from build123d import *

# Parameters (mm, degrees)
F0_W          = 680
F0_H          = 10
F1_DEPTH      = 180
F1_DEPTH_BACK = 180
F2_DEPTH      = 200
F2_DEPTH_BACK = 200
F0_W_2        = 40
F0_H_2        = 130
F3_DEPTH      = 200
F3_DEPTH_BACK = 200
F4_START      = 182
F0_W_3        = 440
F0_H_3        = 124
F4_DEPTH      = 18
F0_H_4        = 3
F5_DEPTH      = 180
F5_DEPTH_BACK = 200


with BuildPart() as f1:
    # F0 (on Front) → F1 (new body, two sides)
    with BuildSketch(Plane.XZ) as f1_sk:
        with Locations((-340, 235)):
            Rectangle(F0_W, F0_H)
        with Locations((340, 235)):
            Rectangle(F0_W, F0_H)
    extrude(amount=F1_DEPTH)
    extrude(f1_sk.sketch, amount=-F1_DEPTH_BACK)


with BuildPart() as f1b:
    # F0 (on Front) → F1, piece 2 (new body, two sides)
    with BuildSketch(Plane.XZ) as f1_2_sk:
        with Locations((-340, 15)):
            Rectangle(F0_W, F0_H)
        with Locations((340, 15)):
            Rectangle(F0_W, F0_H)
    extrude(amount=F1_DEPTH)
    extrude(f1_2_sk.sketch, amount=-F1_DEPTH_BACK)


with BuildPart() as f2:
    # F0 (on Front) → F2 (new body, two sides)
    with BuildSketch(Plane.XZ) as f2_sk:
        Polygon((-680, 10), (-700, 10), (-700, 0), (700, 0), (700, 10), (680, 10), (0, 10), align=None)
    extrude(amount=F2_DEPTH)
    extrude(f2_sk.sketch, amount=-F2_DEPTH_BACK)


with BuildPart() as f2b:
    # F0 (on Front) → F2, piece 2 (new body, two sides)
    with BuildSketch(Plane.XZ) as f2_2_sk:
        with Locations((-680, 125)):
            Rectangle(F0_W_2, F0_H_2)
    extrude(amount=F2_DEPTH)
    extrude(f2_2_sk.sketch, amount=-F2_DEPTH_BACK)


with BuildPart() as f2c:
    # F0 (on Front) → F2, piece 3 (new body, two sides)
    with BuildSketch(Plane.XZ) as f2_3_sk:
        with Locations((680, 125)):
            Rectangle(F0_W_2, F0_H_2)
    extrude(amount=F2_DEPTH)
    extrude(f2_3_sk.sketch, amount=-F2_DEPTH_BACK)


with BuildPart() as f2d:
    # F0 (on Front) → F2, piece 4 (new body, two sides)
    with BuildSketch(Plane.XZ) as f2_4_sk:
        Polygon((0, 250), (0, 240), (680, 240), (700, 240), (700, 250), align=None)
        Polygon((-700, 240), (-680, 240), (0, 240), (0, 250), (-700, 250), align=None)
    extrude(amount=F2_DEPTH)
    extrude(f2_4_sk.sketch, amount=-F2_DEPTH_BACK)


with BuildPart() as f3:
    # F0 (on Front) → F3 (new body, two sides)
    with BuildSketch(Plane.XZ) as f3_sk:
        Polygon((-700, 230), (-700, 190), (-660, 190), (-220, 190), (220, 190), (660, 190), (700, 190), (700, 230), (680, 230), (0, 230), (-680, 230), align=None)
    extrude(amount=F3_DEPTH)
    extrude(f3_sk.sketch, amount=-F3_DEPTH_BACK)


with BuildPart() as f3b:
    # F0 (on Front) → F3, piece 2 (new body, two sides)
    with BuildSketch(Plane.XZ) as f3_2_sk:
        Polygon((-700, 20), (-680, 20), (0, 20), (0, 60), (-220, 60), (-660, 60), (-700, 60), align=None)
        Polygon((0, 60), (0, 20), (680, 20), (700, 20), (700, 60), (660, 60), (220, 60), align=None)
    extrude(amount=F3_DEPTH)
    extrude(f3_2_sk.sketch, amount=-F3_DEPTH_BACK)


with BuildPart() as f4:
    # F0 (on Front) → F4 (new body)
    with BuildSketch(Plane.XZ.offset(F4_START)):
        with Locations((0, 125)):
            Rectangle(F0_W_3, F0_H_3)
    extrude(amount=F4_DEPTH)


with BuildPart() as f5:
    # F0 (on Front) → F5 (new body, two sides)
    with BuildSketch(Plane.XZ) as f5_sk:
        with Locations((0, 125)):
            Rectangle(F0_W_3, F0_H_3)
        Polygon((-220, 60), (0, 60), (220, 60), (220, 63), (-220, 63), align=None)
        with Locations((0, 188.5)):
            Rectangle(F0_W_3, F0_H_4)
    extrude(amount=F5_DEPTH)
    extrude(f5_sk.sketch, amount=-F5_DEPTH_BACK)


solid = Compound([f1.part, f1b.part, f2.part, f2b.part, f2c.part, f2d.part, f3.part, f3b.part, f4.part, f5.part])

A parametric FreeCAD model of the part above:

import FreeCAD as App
import Part
import Sketcher
from FreeCAD import Vector
Q = App.Units.Quantity


def add_polygon(sketch, points):
    """Adds a closed chain of lines whose ends are joined by coincident constraints."""
    first, n = sketch.GeometryCount, len(points)
    for a, b in zip(points, points[1:] + points[:1]):
        sketch.addGeometry(Part.LineSegment(App.Vector(*a, 0), App.Vector(*b, 0)), False)
    for i in range(n):
        sketch.addConstraint(Sketcher.Constraint("Coincident", first + i, 2, first + (i + 1) % n, 1))

doc = App.newDocument("Part")
body = doc.addObject("PartDesign::Body", "Body")

sketch1 = body.newObject("Sketcher::SketchObject", "Sketch")
sketch1.AttachmentSupport = (doc.getObject("XZ_Plane"), [""])
sketch1.MapMode = "FlatFace"
add_polygon(sketch1, [(-680, 240), (-680, 230), (680, 230), (680, 240)])
sketch1.addConstraint([
    Sketcher.Constraint("Vertical", 0),
    Sketcher.Constraint("Horizontal", 1),
    Sketcher.Constraint("Vertical", 2),
    Sketcher.Constraint("Horizontal", 3),
    Sketcher.Constraint("DistanceX", 1, 1, 1, 2, Q("1360 mm")),
    Sketcher.Constraint("DistanceY", 0, 2, 0, 1, Q("10 mm")),
    Sketcher.Constraint("DistanceX", 0, 2, -1, 1, Q("680 mm")),
    Sketcher.Constraint("DistanceY", -1, 1, 0, 2, Q("230 mm")),
])
pad1 = body.newObject("PartDesign::Pad", "Pad")
pad1.Profile = sketch1
pad1.Type = "TwoLengths"
pad1.Length = 180
pad1.Length2 = 180
body2 = doc.addObject("PartDesign::Body", "Body001")

sketch2 = body2.newObject("Sketcher::SketchObject", "Sketch001")
sketch2.AttachmentSupport = (doc.getObject("XZ_Plane001"), [""])
sketch2.MapMode = "FlatFace"
add_polygon(sketch2, [(-680, 20), (-680, 10), (680, 10), (680, 20)])
sketch2.addConstraint([
    Sketcher.Constraint("Vertical", 0),
    Sketcher.Constraint("Horizontal", 1),
    Sketcher.Constraint("Vertical", 2),
    Sketcher.Constraint("Horizontal", 3),
    Sketcher.Constraint("DistanceX", 1, 1, 1, 2, Q("1360 mm")),
    Sketcher.Constraint("DistanceY", 0, 2, 0, 1, Q("10 mm")),
    Sketcher.Constraint("DistanceX", 0, 2, -1, 1, Q("680 mm")),
    Sketcher.Constraint("DistanceY", -1, 1, 0, 2, Q("10 mm")),
])
pad2 = body2.newObject("PartDesign::Pad", "Pad001")
pad2.Profile = sketch2
pad2.Type = "TwoLengths"
pad2.Length = 180
pad2.Length2 = 180
body3 = doc.addObject("PartDesign::Body", "Body002")

sketch3 = body3.newObject("Sketcher::SketchObject", "Sketch002")
sketch3.AttachmentSupport = (doc.getObject("XZ_Plane002"), [""])
sketch3.MapMode = "FlatFace"
add_polygon(sketch3, [(-700, 10), (-700, 0), (700, 0), (700, 10)])
sketch3.addConstraint([
    Sketcher.Constraint("Vertical", 0),
    Sketcher.Constraint("Horizontal", 1),
    Sketcher.Constraint("Vertical", 2),
    Sketcher.Constraint("Horizontal", 3),
    Sketcher.Constraint("Symmetric", 0, 2, 1, 2, -1, 1),
    Sketcher.Constraint("DistanceX", 1, 1, 1, 2, Q("1400 mm")),
    Sketcher.Constraint("DistanceY", 0, 2, 0, 1, Q("10 mm")),
])
pad3 = body3.newObject("PartDesign::Pad", "Pad002")
pad3.Profile = sketch3
pad3.Type = "TwoLengths"
pad3.Length = 200
pad3.Length2 = 200
body4 = doc.addObject("PartDesign::Body", "Body003")

sketch4 = body4.newObject("Sketcher::SketchObject", "Sketch003")
sketch4.AttachmentSupport = (doc.getObject("XZ_Plane003"), [""])
sketch4.MapMode = "FlatFace"
add_polygon(sketch4, [(-700, 190), (-700, 60), (-660, 60), (-660, 190)])
sketch4.addConstraint([
    Sketcher.Constraint("Vertical", 0),
    Sketcher.Constraint("Horizontal", 1),
    Sketcher.Constraint("Vertical", 2),
    Sketcher.Constraint("Horizontal", 3),
    Sketcher.Constraint("DistanceX", 1, 1, 1, 2, Q("40 mm")),
    Sketcher.Constraint("DistanceY", 0, 2, 0, 1, Q("130 mm")),
    Sketcher.Constraint("DistanceX", 0, 2, -1, 1, Q("700 mm")),
    Sketcher.Constraint("DistanceY", -1, 1, 0, 2, Q("60 mm")),
])
pad4 = body4.newObject("PartDesign::Pad", "Pad003")
pad4.Profile = sketch4
pad4.Type = "TwoLengths"
pad4.Length = 200
pad4.Length2 = 200
body5 = doc.addObject("PartDesign::Body", "Body004")

sketch5 = body5.newObject("Sketcher::SketchObject", "Sketch004")
sketch5.AttachmentSupport = (doc.getObject("XZ_Plane004"), [""])
sketch5.MapMode = "FlatFace"
add_polygon(sketch5, [(660, 190), (660, 60), (700, 60), (700, 190)])
sketch5.addConstraint([
    Sketcher.Constraint("Vertical", 0),
    Sketcher.Constraint("Horizontal", 1),
    Sketcher.Constraint("Vertical", 2),
    Sketcher.Constraint("Horizontal", 3),
    Sketcher.Constraint("DistanceX", 1, 1, 1, 2, Q("40 mm")),
    Sketcher.Constraint("DistanceY", 0, 2, 0, 1, Q("130 mm")),
    Sketcher.Constraint("DistanceX", -1, 1, 0, 2, Q("660 mm")),
    Sketcher.Constraint("DistanceY", -1, 1, 0, 2, Q("60 mm")),
])
pad5 = body5.newObject("PartDesign::Pad", "Pad004")
pad5.Profile = sketch5
pad5.Type = "TwoLengths"
pad5.Length = 200
pad5.Length2 = 200
body6 = doc.addObject("PartDesign::Body", "Body005")

sketch6 = body6.newObject("Sketcher::SketchObject", "Sketch005")
sketch6.AttachmentSupport = (doc.getObject("XZ_Plane005"), [""])
sketch6.MapMode = "FlatFace"
add_polygon(sketch6, [(700, 240), (700, 250), (-700, 250), (-700, 240)])
sketch6.addConstraint([
    Sketcher.Constraint("Vertical", 0),
    Sketcher.Constraint("Horizontal", 1),
    Sketcher.Constraint("Vertical", 2),
    Sketcher.Constraint("Horizontal", 3),
    Sketcher.Constraint("DistanceX", 1, 2, 1, 1, Q("1400 mm")),
    Sketcher.Constraint("DistanceY", 0, 1, 0, 2, Q("10 mm")),
    Sketcher.Constraint("DistanceX", -1, 1, 0, 2, Q("700 mm")),
    Sketcher.Constraint("DistanceY", -1, 1, 0, 2, Q("250 mm")),
])
pad6 = body6.newObject("PartDesign::Pad", "Pad005")
pad6.Profile = sketch6
pad6.Type = "TwoLengths"
pad6.Length = 200
pad6.Length2 = 200
body7 = doc.addObject("PartDesign::Body", "Body006")

sketch7 = body7.newObject("Sketcher::SketchObject", "Sketch006")
sketch7.AttachmentSupport = (doc.getObject("XZ_Plane006"), [""])
sketch7.MapMode = "FlatFace"
add_polygon(sketch7, [(-700, 230), (-700, 190), (700, 190), (700, 230)])
sketch7.addConstraint([
    Sketcher.Constraint("Vertical", 0),
    Sketcher.Constraint("Horizontal", 1),
    Sketcher.Constraint("Vertical", 2),
    Sketcher.Constraint("Horizontal", 3),
    Sketcher.Constraint("DistanceX", 1, 1, 1, 2, Q("1400 mm")),
    Sketcher.Constraint("DistanceY", 0, 2, 0, 1, Q("40 mm")),
    Sketcher.Constraint("DistanceX", 0, 2, -1, 1, Q("700 mm")),
    Sketcher.Constraint("DistanceY", -1, 1, 0, 2, Q("190 mm")),
])
pad7 = body7.newObject("PartDesign::Pad", "Pad006")
pad7.Profile = sketch7
pad7.Type = "TwoLengths"
pad7.Length = 200
pad7.Length2 = 200
body8 = doc.addObject("PartDesign::Body", "Body007")

sketch8 = body8.newObject("Sketcher::SketchObject", "Sketch007")
sketch8.AttachmentSupport = (doc.getObject("XZ_Plane007"), [""])
sketch8.MapMode = "FlatFace"
add_polygon(sketch8, [(-700, 20), (700, 20), (700, 60), (-700, 60)])
sketch8.addConstraint([
    Sketcher.Constraint("Horizontal", 0),
    Sketcher.Constraint("Vertical", 1),
    Sketcher.Constraint("Horizontal", 2),
    Sketcher.Constraint("Vertical", 3),
    Sketcher.Constraint("DistanceX", 0, 1, 0, 2, Q("1400 mm")),
    Sketcher.Constraint("DistanceY", 1, 1, 1, 2, Q("40 mm")),
    Sketcher.Constraint("DistanceX", -1, 1, 0, 2, Q("700 mm")),
    Sketcher.Constraint("DistanceY", -1, 1, 0, 2, Q("20 mm")),
])
pad8 = body8.newObject("PartDesign::Pad", "Pad007")
pad8.Profile = sketch8
pad8.Type = "TwoLengths"
pad8.Length = 200
pad8.Length2 = 200
body9 = doc.addObject("PartDesign::Body", "Body008")

sketch9 = body9.newObject("Sketcher::SketchObject", "Sketch008")
sketch9.AttachmentSupport = (doc.getObject("XZ_Plane008"), [""])
sketch9.MapMode = "FlatFace"
sketch9.AttachmentOffset = App.Placement(Vector(0, 0, 182), App.Rotation())
add_polygon(sketch9, [(-220, 187), (-220, 63), (220, 63), (220, 187)])
sketch9.addConstraint([
    Sketcher.Constraint("Vertical", 0),
    Sketcher.Constraint("Horizontal", 1),
    Sketcher.Constraint("Vertical", 2),
    Sketcher.Constraint("Horizontal", 3),
    Sketcher.Constraint("DistanceX", 1, 1, 1, 2, Q("440 mm")),
    Sketcher.Constraint("DistanceY", 0, 2, 0, 1, Q("124 mm")),
    Sketcher.Constraint("DistanceX", 0, 2, -1, 1, Q("220 mm")),
    Sketcher.Constraint("DistanceY", -1, 1, 0, 2, Q("63 mm")),
])
pad9 = body9.newObject("PartDesign::Pad", "Pad008")
pad9.Profile = sketch9
pad9.Length = 18
body10 = doc.addObject("PartDesign::Body", "Body009")

sketch10 = body10.newObject("Sketcher::SketchObject", "Sketch009")
sketch10.AttachmentSupport = (doc.getObject("XZ_Plane009"), [""])
sketch10.MapMode = "FlatFace"
add_polygon(sketch10, [(-220, 60), (220, 60), (220, 190), (-220, 190)])
sketch10.addConstraint([
    Sketcher.Constraint("Horizontal", 0),
    Sketcher.Constraint("Vertical", 1),
    Sketcher.Constraint("Horizontal", 2),
    Sketcher.Constraint("Vertical", 3),
    Sketcher.Constraint("DistanceX", 0, 1, 0, 2, Q("440 mm")),
    Sketcher.Constraint("DistanceY", 1, 1, 1, 2, Q("130 mm")),
    Sketcher.Constraint("DistanceX", -1, 1, 0, 2, Q("220 mm")),
    Sketcher.Constraint("DistanceY", -1, 1, 0, 2, Q("60 mm")),
])
pad10 = body10.newObject("PartDesign::Pad", "Pad009")
pad10.Profile = sketch10
pad10.Type = "TwoLengths"
pad10.Length = 180
pad10.Length2 = 200

doc.recompute()
